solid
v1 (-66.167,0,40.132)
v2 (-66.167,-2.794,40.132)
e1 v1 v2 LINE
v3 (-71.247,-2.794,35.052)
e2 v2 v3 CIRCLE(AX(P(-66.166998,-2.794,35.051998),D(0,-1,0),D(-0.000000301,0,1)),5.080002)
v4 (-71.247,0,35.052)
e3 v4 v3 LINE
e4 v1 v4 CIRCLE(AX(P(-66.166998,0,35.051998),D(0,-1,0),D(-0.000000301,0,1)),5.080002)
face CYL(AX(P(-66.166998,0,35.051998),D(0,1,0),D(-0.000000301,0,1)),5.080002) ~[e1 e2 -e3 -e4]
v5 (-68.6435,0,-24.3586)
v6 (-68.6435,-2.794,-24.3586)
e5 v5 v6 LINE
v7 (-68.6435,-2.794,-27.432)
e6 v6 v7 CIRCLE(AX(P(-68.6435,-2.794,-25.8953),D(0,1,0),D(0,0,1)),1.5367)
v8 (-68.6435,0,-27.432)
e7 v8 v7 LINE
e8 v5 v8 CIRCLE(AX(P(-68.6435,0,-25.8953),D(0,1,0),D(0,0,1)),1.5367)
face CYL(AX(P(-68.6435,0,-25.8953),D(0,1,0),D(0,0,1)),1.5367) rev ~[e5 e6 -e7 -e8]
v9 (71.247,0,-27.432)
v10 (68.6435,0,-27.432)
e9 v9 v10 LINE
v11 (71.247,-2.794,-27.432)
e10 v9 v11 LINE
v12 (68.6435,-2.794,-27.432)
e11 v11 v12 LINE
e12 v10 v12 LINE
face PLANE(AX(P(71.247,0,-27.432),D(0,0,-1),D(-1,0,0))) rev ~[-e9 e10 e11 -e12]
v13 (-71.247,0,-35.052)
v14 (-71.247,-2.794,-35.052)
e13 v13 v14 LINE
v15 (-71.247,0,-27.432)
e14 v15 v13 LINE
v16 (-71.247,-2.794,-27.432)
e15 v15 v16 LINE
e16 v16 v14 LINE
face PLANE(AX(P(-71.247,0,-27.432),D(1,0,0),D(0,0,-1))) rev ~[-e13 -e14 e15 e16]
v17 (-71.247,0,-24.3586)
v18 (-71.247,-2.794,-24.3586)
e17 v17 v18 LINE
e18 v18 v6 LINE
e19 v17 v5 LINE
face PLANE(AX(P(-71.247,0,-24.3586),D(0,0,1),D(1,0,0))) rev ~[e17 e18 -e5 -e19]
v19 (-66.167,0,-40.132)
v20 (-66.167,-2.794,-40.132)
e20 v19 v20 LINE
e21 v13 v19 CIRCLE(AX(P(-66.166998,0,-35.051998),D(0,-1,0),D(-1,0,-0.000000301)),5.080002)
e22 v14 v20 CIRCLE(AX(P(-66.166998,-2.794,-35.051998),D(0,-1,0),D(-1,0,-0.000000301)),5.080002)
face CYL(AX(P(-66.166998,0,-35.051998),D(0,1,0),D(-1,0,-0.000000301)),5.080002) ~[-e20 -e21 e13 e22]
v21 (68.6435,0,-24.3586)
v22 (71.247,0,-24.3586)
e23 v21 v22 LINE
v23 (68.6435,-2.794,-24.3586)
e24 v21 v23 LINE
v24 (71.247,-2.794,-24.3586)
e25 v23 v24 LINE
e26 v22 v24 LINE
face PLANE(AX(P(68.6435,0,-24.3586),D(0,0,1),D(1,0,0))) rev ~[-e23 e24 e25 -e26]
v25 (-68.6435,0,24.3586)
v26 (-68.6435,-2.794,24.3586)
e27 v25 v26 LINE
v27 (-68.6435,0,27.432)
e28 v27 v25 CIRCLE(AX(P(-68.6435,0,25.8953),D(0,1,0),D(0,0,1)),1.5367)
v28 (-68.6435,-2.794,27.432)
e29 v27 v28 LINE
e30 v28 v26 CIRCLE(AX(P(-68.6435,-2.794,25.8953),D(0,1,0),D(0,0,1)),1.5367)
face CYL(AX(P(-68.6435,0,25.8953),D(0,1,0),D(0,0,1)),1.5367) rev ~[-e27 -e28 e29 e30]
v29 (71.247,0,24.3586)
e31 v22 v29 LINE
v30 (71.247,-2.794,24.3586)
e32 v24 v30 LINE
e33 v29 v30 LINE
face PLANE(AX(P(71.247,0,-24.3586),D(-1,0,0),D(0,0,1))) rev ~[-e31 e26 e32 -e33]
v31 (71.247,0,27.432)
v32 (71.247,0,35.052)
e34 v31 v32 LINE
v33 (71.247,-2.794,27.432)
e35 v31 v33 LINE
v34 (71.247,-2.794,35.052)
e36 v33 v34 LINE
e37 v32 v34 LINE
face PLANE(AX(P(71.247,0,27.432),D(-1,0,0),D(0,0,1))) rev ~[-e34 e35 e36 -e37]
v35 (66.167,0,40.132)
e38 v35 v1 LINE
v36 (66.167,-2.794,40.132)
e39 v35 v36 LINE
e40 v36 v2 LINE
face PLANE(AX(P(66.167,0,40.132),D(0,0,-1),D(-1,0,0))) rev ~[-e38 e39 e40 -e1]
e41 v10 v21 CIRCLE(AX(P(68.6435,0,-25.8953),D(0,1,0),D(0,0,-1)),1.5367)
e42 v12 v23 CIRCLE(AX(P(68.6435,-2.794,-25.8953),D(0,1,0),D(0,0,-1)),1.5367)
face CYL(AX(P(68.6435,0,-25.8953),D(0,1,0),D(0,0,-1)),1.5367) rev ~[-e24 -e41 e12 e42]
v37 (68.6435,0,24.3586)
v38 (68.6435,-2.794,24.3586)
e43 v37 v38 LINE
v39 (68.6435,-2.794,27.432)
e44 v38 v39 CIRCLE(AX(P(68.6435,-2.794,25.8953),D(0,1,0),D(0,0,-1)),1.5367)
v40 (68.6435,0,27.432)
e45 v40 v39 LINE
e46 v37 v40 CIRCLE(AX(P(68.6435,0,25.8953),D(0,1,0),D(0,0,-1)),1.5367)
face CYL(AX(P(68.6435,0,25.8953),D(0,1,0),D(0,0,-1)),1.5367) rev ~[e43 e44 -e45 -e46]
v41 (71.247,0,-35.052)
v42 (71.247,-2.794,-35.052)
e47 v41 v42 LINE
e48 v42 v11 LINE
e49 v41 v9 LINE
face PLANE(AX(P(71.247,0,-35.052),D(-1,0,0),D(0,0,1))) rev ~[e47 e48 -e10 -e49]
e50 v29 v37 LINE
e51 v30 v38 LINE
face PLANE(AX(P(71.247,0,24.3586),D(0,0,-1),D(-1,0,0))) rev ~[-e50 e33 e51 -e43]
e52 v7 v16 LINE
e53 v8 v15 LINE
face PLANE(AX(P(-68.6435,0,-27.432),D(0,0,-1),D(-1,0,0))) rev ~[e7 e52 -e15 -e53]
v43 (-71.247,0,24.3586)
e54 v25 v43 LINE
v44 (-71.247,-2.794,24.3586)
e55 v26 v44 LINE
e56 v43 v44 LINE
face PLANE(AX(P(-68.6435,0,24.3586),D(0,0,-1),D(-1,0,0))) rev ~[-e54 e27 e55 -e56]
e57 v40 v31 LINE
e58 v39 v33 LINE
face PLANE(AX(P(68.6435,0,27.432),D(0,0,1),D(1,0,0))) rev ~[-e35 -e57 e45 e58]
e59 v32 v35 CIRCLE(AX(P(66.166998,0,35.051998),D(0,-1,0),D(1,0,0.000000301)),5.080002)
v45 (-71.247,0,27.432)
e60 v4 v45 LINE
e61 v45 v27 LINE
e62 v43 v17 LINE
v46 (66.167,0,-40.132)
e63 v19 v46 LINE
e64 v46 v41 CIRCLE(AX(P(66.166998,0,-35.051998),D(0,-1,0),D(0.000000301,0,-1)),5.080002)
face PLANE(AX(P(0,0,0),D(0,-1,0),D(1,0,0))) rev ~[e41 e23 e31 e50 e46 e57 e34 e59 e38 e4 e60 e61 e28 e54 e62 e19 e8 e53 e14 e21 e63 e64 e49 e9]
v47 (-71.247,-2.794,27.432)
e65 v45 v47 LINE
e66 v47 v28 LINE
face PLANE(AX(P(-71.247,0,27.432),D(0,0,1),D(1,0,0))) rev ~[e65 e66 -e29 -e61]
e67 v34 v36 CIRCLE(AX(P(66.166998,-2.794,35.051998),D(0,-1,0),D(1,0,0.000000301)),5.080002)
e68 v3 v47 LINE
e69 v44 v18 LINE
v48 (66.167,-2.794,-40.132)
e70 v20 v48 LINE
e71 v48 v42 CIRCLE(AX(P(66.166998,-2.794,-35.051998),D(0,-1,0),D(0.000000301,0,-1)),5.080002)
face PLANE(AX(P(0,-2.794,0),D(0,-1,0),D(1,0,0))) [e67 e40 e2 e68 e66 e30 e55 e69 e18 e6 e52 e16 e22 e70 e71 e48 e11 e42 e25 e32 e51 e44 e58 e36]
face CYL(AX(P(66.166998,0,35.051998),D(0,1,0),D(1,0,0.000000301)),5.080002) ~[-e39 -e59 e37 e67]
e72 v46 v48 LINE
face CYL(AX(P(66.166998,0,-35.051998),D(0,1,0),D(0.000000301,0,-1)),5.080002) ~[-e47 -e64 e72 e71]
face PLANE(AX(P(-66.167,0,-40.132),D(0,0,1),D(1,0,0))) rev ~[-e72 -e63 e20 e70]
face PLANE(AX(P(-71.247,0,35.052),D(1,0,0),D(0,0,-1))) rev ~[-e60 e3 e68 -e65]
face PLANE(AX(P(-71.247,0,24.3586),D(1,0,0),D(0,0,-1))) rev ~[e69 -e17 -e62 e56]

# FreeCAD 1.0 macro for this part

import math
import FreeCAD as App
import Part
import Sketcher
from FreeCAD import Vector
Q = App.Units.Quantity

doc = App.newDocument("Part")
params = doc.addObject("Spreadsheet::Sheet", "Params")
for row, (alias, value) in enumerate([
    ("sketch1_radius", "0.2000001 in"),
    ("sketch1_height", "0.3 in"),
    ("sketch1_width", "5.21 in"),
    ("sketch1_height2", "1.918 in"),
    ("pad1_length", "0.11 in"),
], start=1):
    params.set(f"A{row}", alias)
    params.set(f"B{row}", "=" + value)
    params.setAlias(f"B{row}", alias)

body = doc.addObject("PartDesign::Body", "Body")

# Sketch on XZ plane
sketch1 = body.newObject("Sketcher::SketchObject", "Sketch")
sketch1.AttachmentSupport = (doc.getObject("XZ_Plane"), [""])
sketch1.MapMode = "FlatFace"
sketch1.addGeometry(Part.ArcOfCircle(Part.Circle(Vector(66.166998, 35.051998, 0), Vector(0, 0, 1), 5.080002), math.radians(0.000017), math.radians(89.999983)), False)
sketch1.addGeometry(Part.LineSegment(Vector(66.167, 40.132, 0), Vector(-66.167, 40.132, 0)), False)
sketch1.addGeometry(Part.ArcOfCircle(Part.Circle(Vector(-66.166998, 35.051998, 0), Vector(0, 0, 1), 5.080002), math.radians(90.000017), math.radians(179.999983)), False)
sketch1.addGeometry(Part.LineSegment(Vector(-71.247, 35.052, 0), Vector(-71.247, 27.432, 0)), False)
sketch1.addGeometry(Part.LineSegment(Vector(-71.247, 27.432, 0), Vector(-68.6435, 27.432, 0)), False)
sketch1.addGeometry(Part.ArcOfCircle(Part.Circle(Vector(-68.6435, 25.8953, 0), Vector(0, 0, 1), 1.5367), math.radians(-90), math.radians(90)), False)
sketch1.addGeometry(Part.LineSegment(Vector(-68.6435, 24.3586, 0), Vector(-71.247, 24.3586, 0)), False)
sketch1.addGeometry(Part.LineSegment(Vector(-71.247, 24.3586, 0), Vector(-71.247, -24.3586, 0)), False)
sketch1.addGeometry(Part.LineSegment(Vector(-71.247, -24.3586, 0), Vector(-68.6435, -24.3586, 0)), False)
sketch1.addGeometry(Part.ArcOfCircle(Part.Circle(Vector(-68.6435, -25.8953, 0), Vector(0, 0, 1), 1.5367), math.radians(-90), math.radians(90)), False)
sketch1.addGeometry(Part.LineSegment(Vector(-68.6435, -27.432, 0), Vector(-71.247, -27.432, 0)), False)
sketch1.addGeometry(Part.LineSegment(Vector(-71.247, -27.432, 0), Vector(-71.247, -35.052, 0)), False)
sketch1.addGeometry(Part.ArcOfCircle(Part.Circle(Vector(-66.166998, -35.051998, 0), Vector(0, 0, 1), 5.080002), math.radians(-179.999983), math.radians(-90.000017)), False)
sketch1.addGeometry(Part.LineSegment(Vector(-66.167, -40.132, 0), Vector(66.167, -40.132, 0)), False)
sketch1.addGeometry(Part.ArcOfCircle(Part.Circle(Vector(66.166998, -35.051998, 0), Vector(0, 0, 1), 5.080002), math.radians(-89.999983), math.radians(-0.000017)), False)
sketch1.addGeometry(Part.LineSegment(Vector(71.247, -35.052, 0), Vector(71.247, -27.432, 0)), False)
sketch1.addGeometry(Part.LineSegment(Vector(71.247, -27.432, 0), Vector(68.6435, -27.432, 0)), False)
sketch1.addGeometry(Part.ArcOfCircle(Part.Circle(Vector(68.6435, -25.8953, 0), Vector(0, 0, 1), 1.5367), math.radians(90), math.radians(270)), False)
sketch1.addGeometry(Part.LineSegment(Vector(68.6435, -24.3586, 0), Vector(71.247, -24.3586, 0)), False)
sketch1.addGeometry(Part.LineSegment(Vector(71.247, -24.3586, 0), Vector(71.247, 24.3586, 0)), False)
sketch1.addGeometry(Part.LineSegment(Vector(71.247, 24.3586, 0), Vector(68.6435, 24.3586, 0)), False)
sketch1.addGeometry(Part.ArcOfCircle(Part.Circle(Vector(68.6435, 25.8953, 0), Vector(0, 0, 1), 1.5367), math.radians(90), math.radians(270)), False)
sketch1.addGeometry(Part.LineSegment(Vector(68.6435, 27.432, 0), Vector(71.247, 27.432, 0)), False)
sketch1.addGeometry(Part.LineSegment(Vector(71.247, 27.432, 0), Vector(71.247, 35.052, 0)), False)
sketch1.addConstraint(Sketcher.Constraint("Tangent", 0, 2, 1, 1))
sketch1.addConstraint(Sketcher.Constraint("Tangent", 1, 2, 2, 1))
sketch1.addConstraint(Sketcher.Constraint("Tangent", 2, 2, 3, 1))
sketch1.addConstraint(Sketcher.Constraint("Coincident", 3, 2, 4, 1))
sketch1.addConstraint(Sketcher.Constraint("Tangent", 4, 2, 5, 2))
sketch1.addConstraint(Sketcher.Constraint("Tangent", 5, 1, 6, 1))
sketch1.addConstraint(Sketcher.Constraint("Coincident", 6, 2, 7, 1))
sketch1.addConstraint(Sketcher.Constraint("Coincident", 7, 2, 8, 1))
sketch1.addConstraint(Sketcher.Constraint("Tangent", 8, 2, 9, 2))
sketch1.addConstraint(Sketcher.Constraint("Tangent", 9, 1, 10, 1))
sketch1.addConstraint(Sketcher.Constraint("Coincident", 10, 2, 11, 1))
sketch1.addConstraint(Sketcher.Constraint("Tangent", 11, 2, 12, 1))
sketch1.addConstraint(Sketcher.Constraint("Tangent", 12, 2, 13, 1))
sketch1.addConstraint(Sketcher.Constraint("Tangent", 13, 2, 14, 1))
sketch1.addConstraint(Sketcher.Constraint("Tangent", 14, 2, 15, 1))
sketch1.addConstraint(Sketcher.Constraint("Coincident", 15, 2, 16, 1))
sketch1.addConstraint(Sketcher.Constraint("Tangent", 16, 2, 17, 2))
sketch1.addConstraint(Sketcher.Constraint("Tangent", 17, 1, 18, 1))
sketch1.addConstraint(Sketcher.Constraint("Coincident", 18, 2, 19, 1))
sketch1.addConstraint(Sketcher.Constraint("Coincident", 19, 2, 20, 1))
sketch1.addConstraint(Sketcher.Constraint("Tangent", 20, 2, 21, 2))
sketch1.addConstraint(Sketcher.Constraint("Tangent", 21, 1, 22, 1))
sketch1.addConstraint(Sketcher.Constraint("Coincident", 22, 2, 23, 1))
sketch1.addConstraint(Sketcher.Constraint("Tangent", 23, 2, 0, 1))
sketch1.addConstraint(Sketcher.Constraint("Horizontal", 1))
sketch1.addConstraint(Sketcher.Constraint("Vertical", 3))
sketch1.addConstraint(Sketcher.Constraint("Horizontal", 4))
sketch1.addConstraint(Sketcher.Constraint("Horizontal", 6))
sketch1.addConstraint(Sketcher.Constraint("Vertical", 7))
sketch1.addConstraint(Sketcher.Constraint("Horizontal", 8))
sketch1.addConstraint(Sketcher.Constraint("Horizontal", 10))
sketch1.addConstraint(Sketcher.Constraint("Vertical", 11))
sketch1.addConstraint(Sketcher.Constraint("Horizontal", 13))
sketch1.addConstraint(Sketcher.Constraint("Vertical", 15))
sketch1.addConstraint(Sketcher.Constraint("Horizontal", 16))
sketch1.addConstraint(Sketcher.Constraint("Horizontal", 18))
sketch1.addConstraint(Sketcher.Constraint("Vertical", 19))
sketch1.addConstraint(Sketcher.Constraint("Horizontal", 20))
sketch1.addConstraint(Sketcher.Constraint("Horizontal", 22))
sketch1.addConstraint(Sketcher.Constraint("Vertical", 23))
sketch1.addConstraint(Sketcher.Constraint("Equal", 0, 2))
sketch1.addConstraint(Sketcher.Constraint("Equal", 5, 9))
sketch1.addConstraint(Sketcher.Constraint("Equal", 2, 12))
sketch1.addConstraint(Sketcher.Constraint("Equal", 12, 14))
sketch1.addConstraint(Sketcher.Constraint("Equal", 9, 17))
sketch1.addConstraint(Sketcher.Constraint("Equal", 17, 21))
sketch1.addConstraint(Sketcher.Constraint("Symmetric", 0, 3, 12, 3, -1, 1))
sketch1.addConstraint(Sketcher.Constraint("Symmetric", 5, 3, 17, 3, -1, 1))
sketch1.addConstraint(Sketcher.Constraint("Symmetric", 9, 3, 21, 3, -1, 1))
sketch1.addConstraint(Sketcher.Constraint("Symmetric", 9, 3, 17, 3, -2))
sketch1.addConstraint(Sketcher.Constraint("Vertical", 2, 3, 12, 3))
sketch1.addConstraint(Sketcher.Constraint("Vertical", 0, 3, 14, 3))
sketch1.addConstraint(Sketcher.Constraint("Vertical", 3, 2, 6, 2))
sketch1.addConstraint(Sketcher.Constraint("Vertical", 15, 2, 18, 2))
sketch1.addConstraint(Sketcher.Constraint("Radius", 0, Q("0.2000001 in")))
sketch1.addConstraint(Sketcher.Constraint("DistanceY", 3, 2, 3, 1, Q("0.3 in")))
sketch1.addConstraint(Sketcher.Constraint("DistanceX", 1, 2, 1, 1, Q("5.21 in")))
sketch1.addConstraint(Sketcher.Constraint("Radius", 5, Q("0.0605 in")))
sketch1.addConstraint(Sketcher.Constraint("DistanceY", 7, 2, 7, 1, Q("1.918 in")))
sketch1.addConstraint(Sketcher.Constraint("DistanceX", 4, 1, 4, 2, Q("0.1025 in")))
sketch1.setExpression("Constraints[54]", "Params.sketch1_radius")
sketch1.setExpression("Constraints[55]", "Params.sketch1_height")
sketch1.setExpression("Constraints[56]", "Params.sketch1_width")
sketch1.setExpression("Constraints[58]", "Params.sketch1_height2")
pad1 = body.newObject("PartDesign::Pad", "Pad")
pad1.Profile = sketch1
pad1.setExpression("Length", "Params.pad1_length")

doc.recompute()
